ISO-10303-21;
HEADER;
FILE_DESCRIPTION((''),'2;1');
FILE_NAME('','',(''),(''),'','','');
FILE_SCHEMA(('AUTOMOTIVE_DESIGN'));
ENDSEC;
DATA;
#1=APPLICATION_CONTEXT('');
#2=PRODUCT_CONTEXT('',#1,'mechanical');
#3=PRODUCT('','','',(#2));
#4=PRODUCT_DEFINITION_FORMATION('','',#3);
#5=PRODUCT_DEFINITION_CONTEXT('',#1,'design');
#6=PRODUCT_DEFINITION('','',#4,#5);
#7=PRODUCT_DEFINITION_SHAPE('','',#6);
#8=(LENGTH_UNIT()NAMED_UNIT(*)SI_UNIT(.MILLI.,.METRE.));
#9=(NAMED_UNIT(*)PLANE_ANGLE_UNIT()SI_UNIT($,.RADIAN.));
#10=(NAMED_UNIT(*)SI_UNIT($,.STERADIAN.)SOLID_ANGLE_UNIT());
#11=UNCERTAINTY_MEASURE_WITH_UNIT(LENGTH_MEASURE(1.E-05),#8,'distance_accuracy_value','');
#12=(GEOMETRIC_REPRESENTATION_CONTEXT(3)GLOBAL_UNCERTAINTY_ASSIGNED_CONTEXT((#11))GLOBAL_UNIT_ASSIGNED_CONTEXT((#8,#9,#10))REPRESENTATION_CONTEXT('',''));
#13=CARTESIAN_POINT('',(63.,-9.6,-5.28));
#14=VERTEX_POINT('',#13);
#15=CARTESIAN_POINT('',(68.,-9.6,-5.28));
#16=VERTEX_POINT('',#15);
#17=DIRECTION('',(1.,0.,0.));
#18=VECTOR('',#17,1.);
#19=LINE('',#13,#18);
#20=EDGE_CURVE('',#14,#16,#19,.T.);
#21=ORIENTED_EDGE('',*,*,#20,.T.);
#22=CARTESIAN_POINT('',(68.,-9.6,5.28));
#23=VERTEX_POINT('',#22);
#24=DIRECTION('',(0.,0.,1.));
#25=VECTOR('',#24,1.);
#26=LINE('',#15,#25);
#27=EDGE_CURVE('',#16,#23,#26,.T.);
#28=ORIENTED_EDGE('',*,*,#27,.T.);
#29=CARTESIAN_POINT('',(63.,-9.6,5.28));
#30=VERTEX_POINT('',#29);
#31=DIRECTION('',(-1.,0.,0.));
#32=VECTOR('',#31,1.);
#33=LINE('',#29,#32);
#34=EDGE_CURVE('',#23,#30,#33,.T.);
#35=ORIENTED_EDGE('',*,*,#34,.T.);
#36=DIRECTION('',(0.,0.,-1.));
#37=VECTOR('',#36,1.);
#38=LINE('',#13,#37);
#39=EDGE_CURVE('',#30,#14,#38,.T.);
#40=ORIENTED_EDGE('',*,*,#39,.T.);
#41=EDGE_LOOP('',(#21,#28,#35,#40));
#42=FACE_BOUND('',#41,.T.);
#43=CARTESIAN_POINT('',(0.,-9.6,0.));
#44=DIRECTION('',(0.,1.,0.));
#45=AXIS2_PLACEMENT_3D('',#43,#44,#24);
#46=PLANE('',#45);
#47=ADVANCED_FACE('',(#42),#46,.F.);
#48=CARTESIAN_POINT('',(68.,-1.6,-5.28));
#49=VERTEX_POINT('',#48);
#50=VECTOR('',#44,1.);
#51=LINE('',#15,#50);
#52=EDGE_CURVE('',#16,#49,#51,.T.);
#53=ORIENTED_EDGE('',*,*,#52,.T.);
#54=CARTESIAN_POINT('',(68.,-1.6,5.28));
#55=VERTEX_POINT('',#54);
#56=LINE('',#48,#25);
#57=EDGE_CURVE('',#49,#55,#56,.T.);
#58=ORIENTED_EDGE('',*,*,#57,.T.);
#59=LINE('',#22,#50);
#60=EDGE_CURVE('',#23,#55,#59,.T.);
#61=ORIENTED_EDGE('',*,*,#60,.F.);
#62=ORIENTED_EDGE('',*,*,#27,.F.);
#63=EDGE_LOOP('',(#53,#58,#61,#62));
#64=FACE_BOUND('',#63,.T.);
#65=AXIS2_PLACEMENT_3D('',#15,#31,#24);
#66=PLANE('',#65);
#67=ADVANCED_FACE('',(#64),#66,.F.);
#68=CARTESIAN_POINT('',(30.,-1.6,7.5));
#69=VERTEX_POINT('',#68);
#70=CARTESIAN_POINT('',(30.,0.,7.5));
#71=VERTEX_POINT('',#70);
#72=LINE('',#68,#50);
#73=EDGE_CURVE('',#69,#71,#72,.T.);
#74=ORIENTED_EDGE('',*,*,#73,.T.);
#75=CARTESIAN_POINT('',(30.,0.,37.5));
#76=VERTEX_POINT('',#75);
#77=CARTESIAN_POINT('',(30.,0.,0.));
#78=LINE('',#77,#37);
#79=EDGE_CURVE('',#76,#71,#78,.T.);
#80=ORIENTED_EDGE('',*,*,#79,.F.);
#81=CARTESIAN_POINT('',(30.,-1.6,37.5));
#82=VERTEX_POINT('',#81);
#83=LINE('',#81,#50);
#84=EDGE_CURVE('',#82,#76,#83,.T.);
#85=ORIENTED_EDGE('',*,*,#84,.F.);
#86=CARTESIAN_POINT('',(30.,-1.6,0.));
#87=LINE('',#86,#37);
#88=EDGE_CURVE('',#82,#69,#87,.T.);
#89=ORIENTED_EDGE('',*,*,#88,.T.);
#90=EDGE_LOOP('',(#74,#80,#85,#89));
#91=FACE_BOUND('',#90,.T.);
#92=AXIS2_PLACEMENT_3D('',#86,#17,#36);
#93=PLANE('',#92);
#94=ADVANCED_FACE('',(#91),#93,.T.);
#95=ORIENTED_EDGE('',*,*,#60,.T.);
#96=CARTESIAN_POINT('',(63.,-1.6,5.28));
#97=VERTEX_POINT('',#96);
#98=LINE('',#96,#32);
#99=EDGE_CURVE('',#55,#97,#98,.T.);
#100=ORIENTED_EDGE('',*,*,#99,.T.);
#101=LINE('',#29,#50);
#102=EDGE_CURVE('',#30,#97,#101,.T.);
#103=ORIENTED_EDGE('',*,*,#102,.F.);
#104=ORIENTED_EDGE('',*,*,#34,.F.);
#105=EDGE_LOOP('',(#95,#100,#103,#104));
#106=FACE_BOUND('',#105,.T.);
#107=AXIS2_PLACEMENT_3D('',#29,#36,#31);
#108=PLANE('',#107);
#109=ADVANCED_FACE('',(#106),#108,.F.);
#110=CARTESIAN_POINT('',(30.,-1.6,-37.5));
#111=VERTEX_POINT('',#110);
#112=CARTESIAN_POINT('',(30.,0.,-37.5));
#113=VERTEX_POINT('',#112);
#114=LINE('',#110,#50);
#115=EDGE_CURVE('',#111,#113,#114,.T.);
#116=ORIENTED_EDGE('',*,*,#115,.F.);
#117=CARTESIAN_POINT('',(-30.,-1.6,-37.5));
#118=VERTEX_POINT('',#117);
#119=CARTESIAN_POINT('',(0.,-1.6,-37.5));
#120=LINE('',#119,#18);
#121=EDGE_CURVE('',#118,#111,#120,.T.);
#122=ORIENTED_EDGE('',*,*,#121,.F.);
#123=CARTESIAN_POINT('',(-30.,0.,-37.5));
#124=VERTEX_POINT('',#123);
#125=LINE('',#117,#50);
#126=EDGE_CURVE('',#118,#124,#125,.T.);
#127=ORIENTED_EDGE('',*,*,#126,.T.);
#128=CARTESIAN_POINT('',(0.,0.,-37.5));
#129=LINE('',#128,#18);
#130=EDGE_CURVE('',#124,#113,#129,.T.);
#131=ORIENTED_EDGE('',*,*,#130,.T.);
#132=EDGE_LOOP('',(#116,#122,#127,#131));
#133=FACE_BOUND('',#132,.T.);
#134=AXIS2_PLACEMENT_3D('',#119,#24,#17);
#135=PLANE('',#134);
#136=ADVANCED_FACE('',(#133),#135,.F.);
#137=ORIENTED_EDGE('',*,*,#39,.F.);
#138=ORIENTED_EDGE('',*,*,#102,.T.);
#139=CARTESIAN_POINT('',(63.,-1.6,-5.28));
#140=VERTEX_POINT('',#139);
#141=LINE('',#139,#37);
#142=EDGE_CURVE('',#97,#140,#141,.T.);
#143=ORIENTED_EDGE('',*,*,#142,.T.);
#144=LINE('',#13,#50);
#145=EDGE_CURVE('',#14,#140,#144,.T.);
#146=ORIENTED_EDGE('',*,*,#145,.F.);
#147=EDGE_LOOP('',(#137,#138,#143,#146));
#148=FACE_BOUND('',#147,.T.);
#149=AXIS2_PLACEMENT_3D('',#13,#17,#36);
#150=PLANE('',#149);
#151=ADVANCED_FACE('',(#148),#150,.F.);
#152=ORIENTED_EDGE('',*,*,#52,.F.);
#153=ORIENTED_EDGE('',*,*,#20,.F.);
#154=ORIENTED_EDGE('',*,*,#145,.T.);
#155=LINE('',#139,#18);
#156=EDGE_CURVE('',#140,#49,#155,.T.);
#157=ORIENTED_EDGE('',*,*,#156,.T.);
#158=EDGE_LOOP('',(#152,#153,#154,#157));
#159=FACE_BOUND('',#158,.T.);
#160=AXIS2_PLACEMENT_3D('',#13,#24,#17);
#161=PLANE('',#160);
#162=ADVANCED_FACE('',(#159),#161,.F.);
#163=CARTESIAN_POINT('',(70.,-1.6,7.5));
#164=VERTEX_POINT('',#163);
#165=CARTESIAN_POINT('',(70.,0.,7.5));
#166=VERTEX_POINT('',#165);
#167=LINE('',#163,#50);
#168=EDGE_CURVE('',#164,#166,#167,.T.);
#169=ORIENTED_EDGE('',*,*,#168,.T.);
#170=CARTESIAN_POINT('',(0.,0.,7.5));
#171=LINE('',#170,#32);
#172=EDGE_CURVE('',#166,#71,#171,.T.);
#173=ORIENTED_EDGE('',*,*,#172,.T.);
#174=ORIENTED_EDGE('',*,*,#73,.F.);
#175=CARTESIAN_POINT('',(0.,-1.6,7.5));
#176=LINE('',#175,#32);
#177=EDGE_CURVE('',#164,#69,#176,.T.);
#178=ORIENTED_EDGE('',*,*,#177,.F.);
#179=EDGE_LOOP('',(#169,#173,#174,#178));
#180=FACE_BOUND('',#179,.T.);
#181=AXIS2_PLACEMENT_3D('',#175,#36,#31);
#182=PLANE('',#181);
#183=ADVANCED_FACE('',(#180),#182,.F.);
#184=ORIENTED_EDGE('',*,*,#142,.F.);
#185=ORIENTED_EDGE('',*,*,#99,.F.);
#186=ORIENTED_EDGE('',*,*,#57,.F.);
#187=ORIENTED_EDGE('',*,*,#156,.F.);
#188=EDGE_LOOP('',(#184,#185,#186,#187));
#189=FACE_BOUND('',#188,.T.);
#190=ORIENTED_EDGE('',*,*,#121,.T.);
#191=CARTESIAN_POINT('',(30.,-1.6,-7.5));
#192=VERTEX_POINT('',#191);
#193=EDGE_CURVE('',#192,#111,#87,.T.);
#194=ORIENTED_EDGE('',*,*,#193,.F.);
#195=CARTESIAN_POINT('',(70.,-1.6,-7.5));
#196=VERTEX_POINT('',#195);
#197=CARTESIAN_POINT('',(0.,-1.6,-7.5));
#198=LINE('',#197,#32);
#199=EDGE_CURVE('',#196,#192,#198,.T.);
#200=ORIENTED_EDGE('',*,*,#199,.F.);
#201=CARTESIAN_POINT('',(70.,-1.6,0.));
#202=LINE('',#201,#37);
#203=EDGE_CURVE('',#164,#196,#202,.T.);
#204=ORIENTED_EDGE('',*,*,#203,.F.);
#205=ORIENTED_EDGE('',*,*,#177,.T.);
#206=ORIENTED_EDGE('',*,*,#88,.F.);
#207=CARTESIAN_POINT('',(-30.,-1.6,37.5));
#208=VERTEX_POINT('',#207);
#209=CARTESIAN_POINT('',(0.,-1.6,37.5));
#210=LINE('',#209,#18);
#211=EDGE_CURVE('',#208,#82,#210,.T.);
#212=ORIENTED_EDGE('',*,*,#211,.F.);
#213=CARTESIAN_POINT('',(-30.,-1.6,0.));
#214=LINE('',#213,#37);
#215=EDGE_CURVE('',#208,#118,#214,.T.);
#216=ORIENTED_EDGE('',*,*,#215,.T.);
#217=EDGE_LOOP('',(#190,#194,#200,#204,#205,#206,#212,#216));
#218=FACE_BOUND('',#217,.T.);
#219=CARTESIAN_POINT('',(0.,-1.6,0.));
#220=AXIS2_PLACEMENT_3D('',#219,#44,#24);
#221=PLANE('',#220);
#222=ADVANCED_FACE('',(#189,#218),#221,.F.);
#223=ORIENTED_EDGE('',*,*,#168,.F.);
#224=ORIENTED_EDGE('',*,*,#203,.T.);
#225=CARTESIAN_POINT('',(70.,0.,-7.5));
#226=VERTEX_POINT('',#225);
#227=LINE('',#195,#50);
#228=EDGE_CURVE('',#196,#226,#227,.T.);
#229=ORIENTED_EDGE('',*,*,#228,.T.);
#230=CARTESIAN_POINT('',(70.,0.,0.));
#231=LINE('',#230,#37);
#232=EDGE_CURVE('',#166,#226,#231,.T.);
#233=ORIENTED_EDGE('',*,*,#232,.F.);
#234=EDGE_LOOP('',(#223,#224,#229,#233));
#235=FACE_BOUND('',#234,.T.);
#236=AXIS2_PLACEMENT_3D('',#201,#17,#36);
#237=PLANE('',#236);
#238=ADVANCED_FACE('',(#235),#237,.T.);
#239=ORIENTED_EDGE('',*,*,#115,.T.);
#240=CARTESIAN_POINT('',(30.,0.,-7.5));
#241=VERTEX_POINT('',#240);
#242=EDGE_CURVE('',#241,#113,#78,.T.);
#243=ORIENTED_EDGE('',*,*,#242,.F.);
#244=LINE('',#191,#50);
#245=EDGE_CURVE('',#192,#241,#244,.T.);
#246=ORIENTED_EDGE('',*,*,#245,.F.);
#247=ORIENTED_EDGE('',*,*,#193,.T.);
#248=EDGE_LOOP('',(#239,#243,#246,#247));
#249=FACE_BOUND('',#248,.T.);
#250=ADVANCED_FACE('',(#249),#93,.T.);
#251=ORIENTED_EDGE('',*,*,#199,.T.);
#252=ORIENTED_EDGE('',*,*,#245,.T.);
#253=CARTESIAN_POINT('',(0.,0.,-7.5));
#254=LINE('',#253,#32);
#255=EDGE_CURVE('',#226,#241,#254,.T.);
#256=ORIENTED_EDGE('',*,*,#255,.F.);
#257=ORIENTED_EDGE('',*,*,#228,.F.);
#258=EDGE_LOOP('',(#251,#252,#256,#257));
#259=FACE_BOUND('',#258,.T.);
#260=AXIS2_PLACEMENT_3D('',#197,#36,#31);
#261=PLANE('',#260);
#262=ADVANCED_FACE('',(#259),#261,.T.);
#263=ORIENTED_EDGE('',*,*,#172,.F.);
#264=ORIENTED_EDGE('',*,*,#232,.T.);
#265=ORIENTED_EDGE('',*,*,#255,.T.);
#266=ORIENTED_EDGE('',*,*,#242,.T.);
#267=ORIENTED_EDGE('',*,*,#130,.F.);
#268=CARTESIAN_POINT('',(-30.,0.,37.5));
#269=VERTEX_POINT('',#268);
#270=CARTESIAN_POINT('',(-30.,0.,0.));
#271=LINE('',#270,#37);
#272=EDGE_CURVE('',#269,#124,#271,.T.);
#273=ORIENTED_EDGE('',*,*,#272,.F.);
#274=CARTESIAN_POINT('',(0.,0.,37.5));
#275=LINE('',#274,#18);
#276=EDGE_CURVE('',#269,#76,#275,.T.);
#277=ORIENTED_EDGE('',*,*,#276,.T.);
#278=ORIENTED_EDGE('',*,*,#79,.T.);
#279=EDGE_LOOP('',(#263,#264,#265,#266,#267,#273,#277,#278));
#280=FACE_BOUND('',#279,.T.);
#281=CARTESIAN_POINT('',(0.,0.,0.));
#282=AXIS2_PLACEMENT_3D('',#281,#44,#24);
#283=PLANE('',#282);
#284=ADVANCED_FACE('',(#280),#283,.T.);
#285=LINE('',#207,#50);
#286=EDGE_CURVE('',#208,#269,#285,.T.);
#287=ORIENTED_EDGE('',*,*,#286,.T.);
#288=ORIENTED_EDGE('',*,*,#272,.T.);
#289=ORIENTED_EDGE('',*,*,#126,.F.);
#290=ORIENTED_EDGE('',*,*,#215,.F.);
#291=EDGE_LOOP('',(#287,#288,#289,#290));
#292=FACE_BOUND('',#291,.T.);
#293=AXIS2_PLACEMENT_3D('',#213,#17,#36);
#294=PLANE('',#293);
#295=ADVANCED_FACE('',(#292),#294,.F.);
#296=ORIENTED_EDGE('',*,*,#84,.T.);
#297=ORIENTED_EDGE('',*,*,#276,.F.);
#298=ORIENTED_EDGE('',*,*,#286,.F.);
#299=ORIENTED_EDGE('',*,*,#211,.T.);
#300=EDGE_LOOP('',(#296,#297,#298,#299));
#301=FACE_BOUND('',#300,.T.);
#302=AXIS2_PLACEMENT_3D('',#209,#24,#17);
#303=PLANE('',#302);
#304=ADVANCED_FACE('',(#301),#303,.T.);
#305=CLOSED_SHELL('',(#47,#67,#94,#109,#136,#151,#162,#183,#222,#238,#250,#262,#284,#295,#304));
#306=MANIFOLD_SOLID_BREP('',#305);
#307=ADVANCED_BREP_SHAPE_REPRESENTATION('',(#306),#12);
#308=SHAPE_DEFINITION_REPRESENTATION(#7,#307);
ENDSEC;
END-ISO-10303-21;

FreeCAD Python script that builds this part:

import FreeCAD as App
import Part
import Sketcher

V = App.Vector
Q = App.Units.Quantity

doc = App.newDocument("Part")
body = doc.addObject("PartDesign::Body", "Body")

sketch1 = body.newObject("Sketcher::SketchObject", "Sketch")
sketch1.AttachmentSupport = (doc.getObject("XZ_Plane"), [""])
sketch1.MapMode = "FlatFace"
sketch1.addGeometry([
    Part.LineSegment(V(-30, -38, 0), V(-30, 38, 0)),
    Part.LineSegment(V(-30, 38, 0), V(30, 38, 0)),
    Part.LineSegment(V(30, 38, 0), V(30, 8, 0)),
    Part.LineSegment(V(30, 8, 0), V(70, 8, 0)),
    Part.LineSegment(V(70, 8, 0), V(70, -8, 0)),
    Part.LineSegment(V(70, -8, 0), V(30, -8, 0)),
    Part.LineSegment(V(30, -8, 0), V(30, -38, 0)),
    Part.LineSegment(V(30, -38, 0), V(-30, -38, 0)),
], False)
sketch1.addConstraint([
    Sketcher.Constraint("Coincident", 0, 2, 1, 1),
    Sketcher.Constraint("Coincident", 1, 2, 2, 1),
    Sketcher.Constraint("Coincident", 2, 2, 3, 1),
    Sketcher.Constraint("Coincident", 3, 2, 4, 1),
    Sketcher.Constraint("Coincident", 4, 2, 5, 1),
    Sketcher.Constraint("Coincident", 5, 2, 6, 1),
    Sketcher.Constraint("Coincident", 6, 2, 7, 1),
    Sketcher.Constraint("Coincident", 7, 2, 0, 1),
    Sketcher.Constraint("Vertical", 0),
    Sketcher.Constraint("Horizontal", 1),
    Sketcher.Constraint("Vertical", 2),
    Sketcher.Constraint("Horizontal", 3),
    Sketcher.Constraint("Vertical", 4),
    Sketcher.Constraint("Horizontal", 5),
    Sketcher.Constraint("Vertical", 6),
    Sketcher.Constraint("Horizontal", 7),
    Sketcher.Constraint("Symmetric", 0, 2, 6, 2, -1, 1),
    Sketcher.Constraint("Symmetric", 2, 2, 5, 2, -1),
    Sketcher.Constraint("DistanceX", 1, 1, 1, 2, Q("60 mm")),
    Sketcher.Constraint("DistanceX", 3, 1, 3, 2, Q("40 mm")),
    Sketcher.Constraint("DistanceY", 0, 1, 0, 2, Q("75 mm")),
    Sketcher.Constraint("DistanceY", 2, 2, 2, 1, Q("30 mm")),
])
pad1 = body.newObject("PartDesign::Pad", "Pad")
pad1.Profile = sketch1
pad1.Length = 1.6

sketch2 = body.newObject("Sketcher::SketchObject", "Sketch001")
sketch2.AttachmentSupport = (doc.getObject("XZ_Plane"), [""])
sketch2.MapMode = "FlatFace"
sketch2.AttachmentOffset = App.Placement(V(0, 0, 1.6), App.Rotation())
sketch2.addGeometry([
    Part.LineSegment(V(63, 5, 0), V(63, -5, 0)),
    Part.LineSegment(V(63, -5, 0), V(68, -5, 0)),
    Part.LineSegment(V(68, -5, 0), V(68, 5, 0)),
    Part.LineSegment(V(68, 5, 0), V(63, 5, 0)),
], False)
sketch2.addConstraint([
    Sketcher.Constraint("Coincident", 0, 2, 1, 1),
    Sketcher.Constraint("Coincident", 1, 2, 2, 1),
    Sketcher.Constraint("Coincident", 2, 2, 3, 1),
    Sketcher.Constraint("Coincident", 3, 2, 0, 1),
    Sketcher.Constraint("Vertical", 0),
    Sketcher.Constraint("Horizontal", 1),
    Sketcher.Constraint("Vertical", 2),
    Sketcher.Constraint("Horizontal", 3),
    Sketcher.Constraint("DistanceX", 1, 1, 1, 2, Q("5 mm")),
    Sketcher.Constraint("DistanceX", -1, 1, 0, 2, Q("63 mm")),
    Sketcher.Constraint("DistanceY", 0, 2, 0, 1, Q("10.56 mm")),
    Sketcher.Constraint("DistanceY", 0, 2, -1, 1, Q("5.28 mm")),
])
pad2 = body.newObject("PartDesign::Pad", "Pad001")
pad2.Profile = sketch2
pad2.Length = 8

doc.recompute()
